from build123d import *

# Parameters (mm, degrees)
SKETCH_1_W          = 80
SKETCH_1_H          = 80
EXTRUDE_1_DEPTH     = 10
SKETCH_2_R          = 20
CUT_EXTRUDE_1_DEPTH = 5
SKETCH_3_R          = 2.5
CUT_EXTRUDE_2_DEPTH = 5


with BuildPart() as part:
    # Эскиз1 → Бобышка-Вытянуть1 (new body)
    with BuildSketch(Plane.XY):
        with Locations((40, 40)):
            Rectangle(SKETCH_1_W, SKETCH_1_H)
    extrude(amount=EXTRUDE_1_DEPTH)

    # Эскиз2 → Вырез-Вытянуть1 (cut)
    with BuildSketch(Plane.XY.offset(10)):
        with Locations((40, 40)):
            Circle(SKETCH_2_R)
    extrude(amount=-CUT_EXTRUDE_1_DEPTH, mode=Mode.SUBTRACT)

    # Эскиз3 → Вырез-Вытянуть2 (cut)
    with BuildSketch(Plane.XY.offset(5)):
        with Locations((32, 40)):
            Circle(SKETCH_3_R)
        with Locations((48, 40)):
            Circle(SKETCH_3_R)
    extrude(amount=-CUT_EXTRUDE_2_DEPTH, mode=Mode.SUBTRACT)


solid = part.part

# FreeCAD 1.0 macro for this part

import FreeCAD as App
import Part
import Sketcher

V = App.Vector
Q = App.Units.Quantity

doc = App.newDocument("Part")
body = doc.addObject("PartDesign::Body", "Body")

sketch1 = body.newObject("Sketcher::SketchObject", "Sketch")
sketch1.AttachmentSupport = (doc.getObject("XY_Plane"), [""])
sketch1.MapMode = "FlatFace"
sketch1.addGeometry(Part.LineSegment(V(0, 80, 0), V(0, 0, 0)), False)
sketch1.addGeometry(Part.LineSegment(V(0, 0, 0), V(80, 0, 0)), False)
sketch1.addGeometry(Part.LineSegment(V(80, 0, 0), V(80, 80, 0)), False)
sketch1.addGeometry(Part.LineSegment(V(80, 80, 0), V(0, 80, 0)), False)
sketch1.addConstraint(Sketcher.Constraint("Coincident", 0, 2, 1, 1))
sketch1.addConstraint(Sketcher.Constraint("Coincident", 1, 2, 2, 1))
sketch1.addConstraint(Sketcher.Constraint("Coincident", 2, 2, 3, 1))
sketch1.addConstraint(Sketcher.Constraint("Coincident", 3, 2, 0, 1))
sketch1.addConstraint(Sketcher.Constraint("Vertical", 0))
sketch1.addConstraint(Sketcher.Constraint("Horizontal", 1))
sketch1.addConstraint(Sketcher.Constraint("Vertical", 2))
sketch1.addConstraint(Sketcher.Constraint("Horizontal", 3))
sketch1.addConstraint(Sketcher.Constraint("Coincident", 0, 2, -1, 1))
sketch1.addConstraint(Sketcher.Constraint("Equal", 3, 0))
sketch1.addConstraint(Sketcher.Constraint("DistanceX", 1, 1, 1, 2, Q("80 mm")))
pad1 = body.newObject("PartDesign::Pad", "Pad")
pad1.Profile = sketch1
pad1.Length = 10

sketch2 = body.newObject("Sketcher::SketchObject", "Sketch001")
sketch2.AttachmentSupport = (doc.getObject("XY_Plane"), [""])
sketch2.MapMode = "FlatFace"
sketch2.AttachmentOffset = App.Placement(V(0, 0, 10), App.Rotation())
sketch2.addGeometry(Part.Circle(V(40, 40, 0), V(0, 0, 1), 20), False)
sketch2.addConstraint(Sketcher.Constraint("Diameter", 0, Q("40 mm")))
sketch2.addConstraint(Sketcher.Constraint("DistanceX", -1, 1, 0, 3, Q("40 mm")))
sketch2.addConstraint(Sketcher.Constraint("DistanceY", -1, 1, 0, 3, Q("40 mm")))
pocket1 = body.newObject("PartDesign::Pocket", "Pocket")
pocket1.Profile = sketch2
pocket1.Length = 5

sketch3 = body.newObject("Sketcher::SketchObject", "Sketch002")
sketch3.AttachmentSupport = (doc.getObject("XY_Plane"), [""])
sketch3.MapMode = "FlatFace"
sketch3.AttachmentOffset = App.Placement(V(0, 0, 5), App.Rotation())
sketch3.addGeometry(Part.Circle(V(32, 40, 0), V(0, 0, 1), 2.5), False)
sketch3.addGeometry(Part.Circle(V(48, 40, 0), V(0, 0, 1), 2.5), False)
sketch3.addConstraint(Sketcher.Constraint("Equal", 0, 1))
sketch3.addConstraint(Sketcher.Constraint("Horizontal", 0, 3, 1, 3))
sketch3.addConstraint(Sketcher.Constraint("Diameter", 0, Q("5 mm")))
sketch3.addConstraint(Sketcher.Constraint("DistanceX", -1, 1, 0, 3, Q("32 mm")))
sketch3.addConstraint(Sketcher.Constraint("DistanceY", -1, 1, 0, 3, Q("40 mm")))
sketch3.addConstraint(Sketcher.Constraint("DistanceX", -1, 1, 1, 3, Q("48 mm")))
pocket2 = body.newObject("PartDesign::Pocket", "Pocket001")
pocket2.Profile = sketch3
pocket2.Length = 5

doc.recompute()
